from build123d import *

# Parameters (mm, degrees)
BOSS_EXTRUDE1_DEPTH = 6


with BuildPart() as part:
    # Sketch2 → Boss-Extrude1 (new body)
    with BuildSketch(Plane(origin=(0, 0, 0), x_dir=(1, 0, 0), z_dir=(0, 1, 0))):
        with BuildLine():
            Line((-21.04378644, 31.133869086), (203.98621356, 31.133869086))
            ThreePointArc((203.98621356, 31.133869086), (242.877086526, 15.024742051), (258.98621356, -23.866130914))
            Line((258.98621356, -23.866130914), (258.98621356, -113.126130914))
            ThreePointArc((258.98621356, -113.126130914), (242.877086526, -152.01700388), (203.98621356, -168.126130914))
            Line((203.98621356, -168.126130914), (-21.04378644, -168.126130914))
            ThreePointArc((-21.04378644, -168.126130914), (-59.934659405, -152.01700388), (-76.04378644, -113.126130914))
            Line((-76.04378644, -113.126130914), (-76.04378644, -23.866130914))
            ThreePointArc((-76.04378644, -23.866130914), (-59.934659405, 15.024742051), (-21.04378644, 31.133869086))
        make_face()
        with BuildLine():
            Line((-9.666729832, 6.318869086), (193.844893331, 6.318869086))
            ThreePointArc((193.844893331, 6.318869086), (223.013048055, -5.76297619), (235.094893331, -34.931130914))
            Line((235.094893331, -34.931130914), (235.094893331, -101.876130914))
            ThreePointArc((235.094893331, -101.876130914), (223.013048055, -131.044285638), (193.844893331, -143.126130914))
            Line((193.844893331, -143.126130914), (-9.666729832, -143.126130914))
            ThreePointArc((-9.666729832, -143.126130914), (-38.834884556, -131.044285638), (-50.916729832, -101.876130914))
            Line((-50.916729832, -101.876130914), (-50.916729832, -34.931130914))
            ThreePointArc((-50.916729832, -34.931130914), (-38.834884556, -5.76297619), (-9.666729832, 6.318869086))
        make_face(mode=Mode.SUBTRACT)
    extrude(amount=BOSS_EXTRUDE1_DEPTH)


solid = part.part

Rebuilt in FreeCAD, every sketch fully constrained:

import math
import FreeCAD as App
import Part
import Sketcher
Q = App.Units.Quantity

doc = App.newDocument("Part")
body = doc.addObject("PartDesign::Body", "Body")

# Sketch on XZ plane
sketch1 = doc.addObject("Sketcher::SketchObject", "Sketch")
body.addObject(sketch1)
sketch1.AttachmentSupport = (doc.XZ_Plane, [""])
sketch1.MapMode = "FlatFace"
sketch1.addGeometry([
    Part.LineSegment(App.Vector(203.986214, -31.133869, 0), App.Vector(-21.043786, -31.133869, 0)),  # 0
    Part.ArcOfCircle(Part.Circle(App.Vector(-21.043786, 23.866131, 0), App.Vector(0, 0, 1), 55), math.radians(-180), math.radians(-90)),  # 1
    Part.LineSegment(App.Vector(-76.043786, 23.866131, 0), App.Vector(-76.043786, 113.126131, 0)),  # 2
    Part.ArcOfCircle(Part.Circle(App.Vector(-21.043786, 113.126131, 0), App.Vector(0, 0, 1), 55), math.radians(90), math.radians(180)),  # 3
    Part.LineSegment(App.Vector(-21.043786, 168.126131, 0), App.Vector(203.986214, 168.126131, 0)),  # 4
    Part.ArcOfCircle(Part.Circle(App.Vector(203.986214, 113.126131, 0), App.Vector(0, 0, 1), 55), math.radians(0), math.radians(90)),  # 5
    Part.LineSegment(App.Vector(258.986214, 113.126131, 0), App.Vector(258.986214, 23.866131, 0)),  # 6
    Part.ArcOfCircle(Part.Circle(App.Vector(203.986214, 23.866131, 0), App.Vector(0, 0, 1), 55), math.radians(-90), math.radians(0)),  # 7
    Part.LineSegment(App.Vector(-9.66673, -6.318869, 0), App.Vector(193.844893, -6.318869, 0)),  # 8
    Part.ArcOfCircle(Part.Circle(App.Vector(193.844893, 34.931131, 0), App.Vector(0, 0, 1), 41.25), math.radians(-90), math.radians(0)),  # 9
    Part.LineSegment(App.Vector(235.094893, 34.931131, 0), App.Vector(235.094893, 101.876131, 0)),  # 10
    Part.ArcOfCircle(Part.Circle(App.Vector(193.844893, 101.876131, 0), App.Vector(0, 0, 1), 41.25), math.radians(0), math.radians(90)),  # 11
    Part.LineSegment(App.Vector(193.844893, 143.126131, 0), App.Vector(-9.66673, 143.126131, 0)),  # 12
    Part.ArcOfCircle(Part.Circle(App.Vector(-9.66673, 101.876131, 0), App.Vector(0, 0, 1), 41.25), math.radians(90), math.radians(180)),  # 13
    Part.LineSegment(App.Vector(-50.91673, 101.876131, 0), App.Vector(-50.91673, 34.931131, 0)),  # 14
    Part.ArcOfCircle(Part.Circle(App.Vector(-9.66673, 34.931131, 0), App.Vector(0, 0, 1), 41.25), math.radians(180), math.radians(270)),  # 15
], False)
sketch1.addConstraint([
    Sketcher.Constraint("Tangent", 0, 2, 1, 2),
    Sketcher.Constraint("Tangent", 1, 1, 2, 1),
    Sketcher.Constraint("Tangent", 2, 2, 3, 2),
    Sketcher.Constraint("Tangent", 3, 1, 4, 1),
    Sketcher.Constraint("Tangent", 4, 2, 5, 2),
    Sketcher.Constraint("Tangent", 5, 1, 6, 1),
    Sketcher.Constraint("Tangent", 6, 2, 7, 2),
    Sketcher.Constraint("Tangent", 7, 1, 0, 1),
    Sketcher.Constraint("Tangent", 8, 2, 9, 1),
    Sketcher.Constraint("Tangent", 9, 2, 10, 1),
    Sketcher.Constraint("Tangent", 10, 2, 11, 1),
    Sketcher.Constraint("Tangent", 11, 2, 12, 1),
    Sketcher.Constraint("Tangent", 12, 2, 13, 1),
    Sketcher.Constraint("Tangent", 13, 2, 14, 1),
    Sketcher.Constraint("Tangent", 14, 2, 15, 1),
    Sketcher.Constraint("Tangent", 15, 2, 8, 1),
    Sketcher.Constraint("Horizontal", 0),
    Sketcher.Constraint("Vertical", 2),
    Sketcher.Constraint("Horizontal", 4),
    Sketcher.Constraint("Vertical", 6),
    Sketcher.Constraint("Horizontal", 8),
    Sketcher.Constraint("Vertical", 10),
    Sketcher.Constraint("Horizontal", 12),
    Sketcher.Constraint("Vertical", 14),
    Sketcher.Constraint("Equal", 1, 3),
    Sketcher.Constraint("Equal", 3, 5),
    Sketcher.Constraint("Equal", 5, 7),
    Sketcher.Constraint("Equal", 9, 11),
    Sketcher.Constraint("Equal", 11, 13),
    Sketcher.Constraint("Equal", 13, 15),
    Sketcher.Constraint("Radius", 1, Q("55 mm")),
    Sketcher.Constraint("Radius", 9, Q("41.25 mm")),
    Sketcher.Constraint("DistanceY", 11, 2, 4, 2, Q("25 mm")),
    Sketcher.Constraint("DistanceX", 0, 2, 0, 1, Q("225.03 mm")),
    Sketcher.Constraint("DistanceY", 2, 1, 2, 2, Q("89.26 mm")),
    Sketcher.Constraint("DistanceY", 10, 1, 10, 2, Q("66.945 mm")),
    Sketcher.Constraint("DistanceX", 8, 1, 8, 2, Q("203.511623 mm")),
    Sketcher.Constraint("DistanceY", -1, 1, 1, 3, Q("23.866131 mm")),
    Sketcher.Constraint("DistanceX", 13, 3, -1, 1, Q("9.66673 mm")),
    Sketcher.Constraint("DistanceX", 9, 3, 7, 3, Q("10.14132 mm")),
])
pad1 = doc.addObject("PartDesign::Pad", "Pad")
body.addObject(pad1)
pad1.Profile = sketch1
pad1.Length = 6
pad1.Reversed = True

doc.recompute()
